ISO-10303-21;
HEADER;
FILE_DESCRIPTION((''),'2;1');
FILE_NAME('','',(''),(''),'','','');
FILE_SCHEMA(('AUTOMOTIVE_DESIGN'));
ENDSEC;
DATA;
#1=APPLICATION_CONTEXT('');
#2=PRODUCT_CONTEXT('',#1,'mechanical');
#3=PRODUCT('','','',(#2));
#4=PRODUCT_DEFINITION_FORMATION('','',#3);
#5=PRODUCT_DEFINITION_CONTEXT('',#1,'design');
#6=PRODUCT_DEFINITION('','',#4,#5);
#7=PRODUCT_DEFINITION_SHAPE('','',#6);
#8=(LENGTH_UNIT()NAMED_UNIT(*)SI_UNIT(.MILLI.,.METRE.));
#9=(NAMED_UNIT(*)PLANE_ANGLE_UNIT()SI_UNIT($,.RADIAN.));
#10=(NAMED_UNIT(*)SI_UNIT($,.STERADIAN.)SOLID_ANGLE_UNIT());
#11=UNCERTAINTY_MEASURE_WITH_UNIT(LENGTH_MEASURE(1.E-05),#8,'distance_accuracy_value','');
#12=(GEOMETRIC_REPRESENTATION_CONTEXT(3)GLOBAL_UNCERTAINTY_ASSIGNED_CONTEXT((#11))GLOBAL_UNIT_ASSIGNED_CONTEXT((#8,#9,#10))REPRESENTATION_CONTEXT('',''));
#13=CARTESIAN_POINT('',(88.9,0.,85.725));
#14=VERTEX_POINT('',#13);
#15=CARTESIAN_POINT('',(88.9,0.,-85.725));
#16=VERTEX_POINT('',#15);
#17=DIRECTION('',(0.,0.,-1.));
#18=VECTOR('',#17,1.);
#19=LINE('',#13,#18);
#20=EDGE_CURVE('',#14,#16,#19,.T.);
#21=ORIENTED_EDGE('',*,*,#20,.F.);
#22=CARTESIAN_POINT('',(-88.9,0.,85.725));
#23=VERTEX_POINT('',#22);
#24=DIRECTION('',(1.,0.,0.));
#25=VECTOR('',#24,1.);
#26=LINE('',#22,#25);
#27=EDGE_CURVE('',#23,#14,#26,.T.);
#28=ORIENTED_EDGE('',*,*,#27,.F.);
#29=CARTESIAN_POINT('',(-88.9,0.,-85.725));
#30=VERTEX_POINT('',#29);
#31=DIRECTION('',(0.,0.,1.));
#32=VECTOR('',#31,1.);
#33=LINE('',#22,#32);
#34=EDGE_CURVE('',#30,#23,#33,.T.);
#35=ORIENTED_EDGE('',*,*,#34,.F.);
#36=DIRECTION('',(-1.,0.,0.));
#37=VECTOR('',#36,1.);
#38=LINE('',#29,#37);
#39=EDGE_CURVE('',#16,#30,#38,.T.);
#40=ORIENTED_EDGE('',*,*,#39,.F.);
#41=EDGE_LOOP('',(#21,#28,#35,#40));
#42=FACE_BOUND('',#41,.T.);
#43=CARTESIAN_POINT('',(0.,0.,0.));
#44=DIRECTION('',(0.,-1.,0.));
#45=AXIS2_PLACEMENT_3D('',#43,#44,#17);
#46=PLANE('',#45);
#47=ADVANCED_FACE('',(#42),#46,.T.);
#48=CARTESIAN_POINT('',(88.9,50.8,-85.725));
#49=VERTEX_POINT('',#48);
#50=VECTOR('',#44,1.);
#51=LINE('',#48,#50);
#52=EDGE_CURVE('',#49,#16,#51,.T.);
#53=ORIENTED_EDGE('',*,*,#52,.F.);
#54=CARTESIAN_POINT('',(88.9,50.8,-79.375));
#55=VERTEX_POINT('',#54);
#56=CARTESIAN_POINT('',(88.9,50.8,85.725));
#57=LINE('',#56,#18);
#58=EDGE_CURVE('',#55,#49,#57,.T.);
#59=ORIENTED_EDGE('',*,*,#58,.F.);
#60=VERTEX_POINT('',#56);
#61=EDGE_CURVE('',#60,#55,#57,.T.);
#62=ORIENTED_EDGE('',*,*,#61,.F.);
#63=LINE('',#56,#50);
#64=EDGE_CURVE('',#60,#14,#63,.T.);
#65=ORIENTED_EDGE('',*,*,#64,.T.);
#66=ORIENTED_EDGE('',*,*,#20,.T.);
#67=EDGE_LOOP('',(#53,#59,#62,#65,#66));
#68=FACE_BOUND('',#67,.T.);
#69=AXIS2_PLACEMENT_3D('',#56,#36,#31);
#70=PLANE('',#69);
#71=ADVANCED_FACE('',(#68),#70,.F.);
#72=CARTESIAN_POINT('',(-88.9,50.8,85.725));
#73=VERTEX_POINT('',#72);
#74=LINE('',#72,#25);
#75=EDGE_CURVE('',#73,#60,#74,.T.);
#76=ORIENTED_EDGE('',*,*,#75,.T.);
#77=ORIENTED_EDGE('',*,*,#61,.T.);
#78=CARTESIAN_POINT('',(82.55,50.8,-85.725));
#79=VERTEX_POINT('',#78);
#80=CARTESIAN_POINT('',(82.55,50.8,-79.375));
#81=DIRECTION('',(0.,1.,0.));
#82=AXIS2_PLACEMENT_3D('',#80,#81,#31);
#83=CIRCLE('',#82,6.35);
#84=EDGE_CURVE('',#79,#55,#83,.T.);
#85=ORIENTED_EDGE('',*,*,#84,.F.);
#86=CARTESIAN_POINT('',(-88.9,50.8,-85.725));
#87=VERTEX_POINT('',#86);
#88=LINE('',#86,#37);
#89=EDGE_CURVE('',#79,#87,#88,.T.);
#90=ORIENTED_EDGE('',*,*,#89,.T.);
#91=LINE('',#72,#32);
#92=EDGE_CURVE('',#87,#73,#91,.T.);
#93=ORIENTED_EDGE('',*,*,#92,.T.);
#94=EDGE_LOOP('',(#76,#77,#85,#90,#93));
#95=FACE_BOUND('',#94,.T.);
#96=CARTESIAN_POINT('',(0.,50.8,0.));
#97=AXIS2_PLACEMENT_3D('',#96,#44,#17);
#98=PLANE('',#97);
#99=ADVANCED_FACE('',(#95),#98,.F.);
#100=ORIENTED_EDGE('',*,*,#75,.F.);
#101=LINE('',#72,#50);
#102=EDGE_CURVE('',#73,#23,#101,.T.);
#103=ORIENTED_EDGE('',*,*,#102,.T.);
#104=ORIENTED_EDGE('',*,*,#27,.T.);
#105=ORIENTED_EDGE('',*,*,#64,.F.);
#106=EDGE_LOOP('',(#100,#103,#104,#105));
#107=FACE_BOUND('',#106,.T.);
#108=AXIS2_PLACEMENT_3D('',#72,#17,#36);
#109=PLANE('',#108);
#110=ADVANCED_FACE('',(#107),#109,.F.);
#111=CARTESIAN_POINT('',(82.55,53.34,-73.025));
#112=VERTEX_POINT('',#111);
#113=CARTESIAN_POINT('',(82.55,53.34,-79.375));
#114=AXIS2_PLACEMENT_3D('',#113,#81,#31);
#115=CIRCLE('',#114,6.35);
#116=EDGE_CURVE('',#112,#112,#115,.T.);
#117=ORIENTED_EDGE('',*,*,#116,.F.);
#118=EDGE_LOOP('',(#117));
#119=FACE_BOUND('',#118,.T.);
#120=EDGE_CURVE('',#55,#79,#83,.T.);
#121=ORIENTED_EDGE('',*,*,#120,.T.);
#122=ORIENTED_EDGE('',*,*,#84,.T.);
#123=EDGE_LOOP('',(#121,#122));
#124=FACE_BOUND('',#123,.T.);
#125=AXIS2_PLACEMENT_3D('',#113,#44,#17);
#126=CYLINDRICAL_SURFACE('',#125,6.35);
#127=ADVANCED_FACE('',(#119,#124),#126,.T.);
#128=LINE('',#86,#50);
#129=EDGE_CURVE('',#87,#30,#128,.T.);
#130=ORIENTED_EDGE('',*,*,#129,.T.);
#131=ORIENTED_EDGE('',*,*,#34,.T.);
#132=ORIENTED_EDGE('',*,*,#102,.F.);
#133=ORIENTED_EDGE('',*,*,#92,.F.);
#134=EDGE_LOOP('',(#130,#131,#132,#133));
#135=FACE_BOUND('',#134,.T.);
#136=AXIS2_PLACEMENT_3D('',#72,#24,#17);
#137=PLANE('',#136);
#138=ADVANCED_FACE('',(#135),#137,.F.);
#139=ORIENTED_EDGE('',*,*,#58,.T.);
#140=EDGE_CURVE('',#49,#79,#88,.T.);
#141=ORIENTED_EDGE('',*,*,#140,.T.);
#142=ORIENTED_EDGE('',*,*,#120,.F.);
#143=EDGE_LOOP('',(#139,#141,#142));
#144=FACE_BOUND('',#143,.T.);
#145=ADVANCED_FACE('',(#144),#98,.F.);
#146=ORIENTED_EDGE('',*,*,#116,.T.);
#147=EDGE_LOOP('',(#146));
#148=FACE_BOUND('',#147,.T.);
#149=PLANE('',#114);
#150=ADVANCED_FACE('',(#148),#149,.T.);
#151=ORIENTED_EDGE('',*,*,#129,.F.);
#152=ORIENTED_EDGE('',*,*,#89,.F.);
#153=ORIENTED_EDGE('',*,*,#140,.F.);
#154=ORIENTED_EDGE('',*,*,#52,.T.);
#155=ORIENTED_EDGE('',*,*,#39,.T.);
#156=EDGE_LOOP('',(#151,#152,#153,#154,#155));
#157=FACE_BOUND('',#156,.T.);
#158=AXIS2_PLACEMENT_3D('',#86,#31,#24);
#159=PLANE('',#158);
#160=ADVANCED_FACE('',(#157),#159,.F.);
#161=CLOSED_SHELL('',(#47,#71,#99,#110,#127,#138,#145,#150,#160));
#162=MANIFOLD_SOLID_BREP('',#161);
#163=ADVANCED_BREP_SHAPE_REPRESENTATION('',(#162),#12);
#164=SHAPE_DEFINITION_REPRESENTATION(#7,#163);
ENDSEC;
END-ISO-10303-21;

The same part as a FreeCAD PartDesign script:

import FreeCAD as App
import Part
import Sketcher
from FreeCAD import Vector
Q = App.Units.Quantity

doc = App.newDocument("Part")
body = doc.addObject("PartDesign::Body", "Body")

sketch1 = doc.addObject("Sketcher::SketchObject", "Sketch")
body.addObject(sketch1)
sketch1.AttachmentSupport = (doc.XZ_Plane, [""])
sketch1.MapMode = "FlatFace"
sketch1.addGeometry([
    Part.LineSegment(Vector(-89, -86, 0), Vector(-89, 86, 0)),
    Part.LineSegment(Vector(-89, 86, 0), Vector(89, 86, 0)),
    Part.LineSegment(Vector(89, 86, 0), Vector(89, -86, 0)),
    Part.LineSegment(Vector(89, -86, 0), Vector(-89, -86, 0)),
], False)
sketch1.addConstraint([
    Sketcher.Constraint("Coincident", 0, 2, 1, 1),
    Sketcher.Constraint("Coincident", 1, 2, 2, 1),
    Sketcher.Constraint("Coincident", 2, 2, 3, 1),
    Sketcher.Constraint("Coincident", 3, 2, 0, 1),
    Sketcher.Constraint("Vertical", 0),
    Sketcher.Constraint("Horizontal", 1),
    Sketcher.Constraint("Vertical", 2),
    Sketcher.Constraint("Horizontal", 3),
    Sketcher.Constraint("Symmetric", 0, 2, 2, 2, -1, 1),
    Sketcher.Constraint("DistanceX", 1, 1, 1, 2, Q("7 in")),
    Sketcher.Constraint("DistanceY", 0, 1, 0, 2, Q("6.75 in")),
])
pad1 = doc.addObject("PartDesign::Pad", "Pad")
body.addObject(pad1)
pad1.Profile = sketch1
pad1.Length = Q("2 in")
pad1.Reversed = True

sketch2 = doc.addObject("Sketcher::SketchObject", "Sketch001")
body.addObject(sketch2)
sketch2.AttachmentSupport = (doc.XZ_Plane, [""])
sketch2.MapMode = "FlatFace"
sketch2.AttachmentOffset = App.Placement(Vector(0, 0, -2 * 25.4), App.Rotation())
sketch2.addGeometry(Part.Circle(Vector(83, -79, 0), Vector(0, 0, 1), 6), False)
sketch2.addConstraint([
    Sketcher.Constraint("Diameter", 0, Q("0.5 in")),
    Sketcher.Constraint("DistanceX", -1, 1, 0, 3, Q("3.25 in")),
    Sketcher.Constraint("DistanceY", 0, 3, -1, 1, Q("3.125 in")),
])
pad2 = doc.addObject("PartDesign::Pad", "Pad001")
body.addObject(pad2)
pad2.Profile = sketch2
pad2.Length = Q("0.1 in")
pad2.Reversed = True

doc.recompute()
